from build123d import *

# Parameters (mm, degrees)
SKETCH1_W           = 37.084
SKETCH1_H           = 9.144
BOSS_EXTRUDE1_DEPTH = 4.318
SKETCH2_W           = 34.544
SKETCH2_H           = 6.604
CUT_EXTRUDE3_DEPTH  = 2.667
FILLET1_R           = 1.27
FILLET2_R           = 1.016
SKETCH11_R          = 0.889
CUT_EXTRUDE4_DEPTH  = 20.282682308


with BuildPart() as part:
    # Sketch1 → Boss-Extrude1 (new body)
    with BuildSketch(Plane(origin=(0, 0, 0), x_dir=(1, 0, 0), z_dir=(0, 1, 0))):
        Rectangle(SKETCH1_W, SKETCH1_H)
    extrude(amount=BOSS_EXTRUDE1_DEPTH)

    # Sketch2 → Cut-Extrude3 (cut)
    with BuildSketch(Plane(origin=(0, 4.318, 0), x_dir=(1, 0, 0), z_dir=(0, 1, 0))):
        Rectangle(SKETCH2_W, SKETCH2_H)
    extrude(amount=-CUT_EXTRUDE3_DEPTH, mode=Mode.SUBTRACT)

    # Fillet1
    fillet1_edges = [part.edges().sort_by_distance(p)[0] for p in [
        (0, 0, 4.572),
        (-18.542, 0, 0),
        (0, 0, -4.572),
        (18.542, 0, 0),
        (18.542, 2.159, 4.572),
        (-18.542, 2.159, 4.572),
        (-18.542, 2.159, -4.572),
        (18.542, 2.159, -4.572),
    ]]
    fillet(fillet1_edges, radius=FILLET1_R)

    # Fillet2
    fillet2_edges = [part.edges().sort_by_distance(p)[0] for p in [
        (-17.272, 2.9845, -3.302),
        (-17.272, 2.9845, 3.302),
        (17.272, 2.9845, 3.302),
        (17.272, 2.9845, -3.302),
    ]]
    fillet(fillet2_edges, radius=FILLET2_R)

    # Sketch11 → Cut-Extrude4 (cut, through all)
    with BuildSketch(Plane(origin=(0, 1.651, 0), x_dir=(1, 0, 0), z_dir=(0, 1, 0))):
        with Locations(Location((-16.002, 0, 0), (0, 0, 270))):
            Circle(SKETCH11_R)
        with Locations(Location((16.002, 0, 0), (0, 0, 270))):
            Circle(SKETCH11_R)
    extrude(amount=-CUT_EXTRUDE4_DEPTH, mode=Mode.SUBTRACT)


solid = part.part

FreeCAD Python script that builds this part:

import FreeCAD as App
import Part
import Sketcher
Q = App.Units.Quantity


def edges_at(feature, points):
    """Names of the edges that pass closest to the given points."""
    edges = feature.Shape.Edges
    near = lambda p: min(range(len(edges)), key=lambda i: edges[i].distToShape(Part.Vertex(*p))[0])
    return sorted({f"Edge{near(p) + 1}" for p in points})


def add_polygon(sketch, points):
    """Adds a closed chain of lines whose ends are joined by coincident constraints."""
    first, n = sketch.GeometryCount, len(points)
    for a, b in zip(points, points[1:] + points[:1]):
        sketch.addGeometry(Part.LineSegment(App.Vector(*a, 0), App.Vector(*b, 0)), False)
    for i in range(n):
        sketch.addConstraint(Sketcher.Constraint("Coincident", first + i, 2, first + (i + 1) % n, 1))

doc = App.newDocument("Part")
body = doc.addObject("PartDesign::Body", "Body")

sketch1 = doc.addObject("Sketcher::SketchObject", "Sketch")
body.addObject(sketch1)
sketch1.AttachmentSupport = (doc.XZ_Plane, [""])
sketch1.MapMode = "FlatFace"
add_polygon(sketch1, [(-19, -5), (-19, 5), (19, 5), (19, -5)])
sketch1.addConstraint([
    Sketcher.Constraint("Vertical", 0),
    Sketcher.Constraint("Horizontal", 1),
    Sketcher.Constraint("Vertical", 2),
    Sketcher.Constraint("Horizontal", 3),
    Sketcher.Constraint("Symmetric", 0, 2, 2, 2, -1, 1),
    Sketcher.Constraint("DistanceX", 1, 1, 1, 2, Q("1.46 in")),
    Sketcher.Constraint("DistanceY", 0, 1, 0, 2, Q("0.36 in")),
])
pad1 = doc.addObject("PartDesign::Pad", "Pad")
body.addObject(pad1)
pad1.Profile = sketch1
pad1.Length = Q("0.17 in")
pad1.Reversed = True

sketch2 = doc.addObject("Sketcher::SketchObject", "Sketch001")
body.addObject(sketch2)
sketch2.AttachmentSupport = (doc.XZ_Plane, [""])
sketch2.MapMode = "FlatFace"
sketch2.AttachmentOffset = App.Placement(App.Vector(0, 0, -0.17 * 25.4), App.Rotation())
add_polygon(sketch2, [(-17, -3), (-17, 3), (17, 3), (17, -3)])
sketch2.addConstraint([
    Sketcher.Constraint("Vertical", 0),
    Sketcher.Constraint("Horizontal", 1),
    Sketcher.Constraint("Vertical", 2),
    Sketcher.Constraint("Horizontal", 3),
    Sketcher.Constraint("Symmetric", 0, 2, 2, 2, -1, 1),
    Sketcher.Constraint("DistanceX", 1, 1, 1, 2, Q("1.36 in")),
    Sketcher.Constraint("DistanceY", 0, 1, 0, 2, Q("0.26 in")),
])
pocket1 = doc.addObject("PartDesign::Pocket", "Pocket")
body.addObject(pocket1)
pocket1.Profile = sketch2
pocket1.Length = Q("0.105 in")
pocket1.Reversed = True
doc.recompute()

fillet = doc.addObject("PartDesign::Fillet", "Fillet")
body.addObject(fillet)
fillet.Base = (pocket1, edges_at(pocket1, [
    (0, 0, 4.572),
    (-18.542, 0, 0),
    (0, 0, -4.572),
    (18.542, 0, 0),
    (18.542, 2.159, 4.572),
    (-18.542, 2.159, 4.572),
    (-18.542, 2.159, -4.572),
    (18.542, 2.159, -4.572),
]))
fillet.Radius = Q("0.05 in")
doc.recompute()

fillet2 = doc.addObject("PartDesign::Fillet", "Fillet001")
body.addObject(fillet2)
fillet2.Base = (fillet, edges_at(fillet, [
    (-17.272, 2.985, -3.302),
    (-17.272, 2.985, 3.302),
    (17.272, 2.985, 3.302),
    (17.272, 2.985, -3.302),
]))
fillet2.Radius = Q("0.04 in")

sketch3 = doc.addObject("Sketcher::SketchObject", "Sketch002")
body.addObject(sketch3)
sketch3.AttachmentSupport = (doc.XZ_Plane, [""])
sketch3.MapMode = "FlatFace"
sketch3.AttachmentOffset = App.Placement(App.Vector(0, 0, -0.065 * 25.4), App.Rotation())
sketch3.addGeometry([
    Part.Circle(App.Vector(-16, 0, 0), App.Vector(0, 0, 1), 0.9),
    Part.Circle(App.Vector(16, 0, 0), App.Vector(0, 0, 1), 0.9),
], False)
sketch3.addConstraint([
    Sketcher.Constraint("Equal", 0, 1),
    Sketcher.Constraint("Symmetric", 0, 3, 1, 3, -1, 1),
    Sketcher.Constraint("PointOnObject", 0, 3, -1),
    Sketcher.Constraint("Diameter", 0, Q("0.07 in")),
    Sketcher.Constraint("DistanceX", 0, 3, -1, 1, Q("0.63 in")),
])
pocket2 = doc.addObject("PartDesign::Pocket", "Pocket001")
body.addObject(pocket2)
pocket2.Profile = sketch3
pocket2.Type = "ThroughAll"
pocket2.Reversed = True

doc.recompute()
